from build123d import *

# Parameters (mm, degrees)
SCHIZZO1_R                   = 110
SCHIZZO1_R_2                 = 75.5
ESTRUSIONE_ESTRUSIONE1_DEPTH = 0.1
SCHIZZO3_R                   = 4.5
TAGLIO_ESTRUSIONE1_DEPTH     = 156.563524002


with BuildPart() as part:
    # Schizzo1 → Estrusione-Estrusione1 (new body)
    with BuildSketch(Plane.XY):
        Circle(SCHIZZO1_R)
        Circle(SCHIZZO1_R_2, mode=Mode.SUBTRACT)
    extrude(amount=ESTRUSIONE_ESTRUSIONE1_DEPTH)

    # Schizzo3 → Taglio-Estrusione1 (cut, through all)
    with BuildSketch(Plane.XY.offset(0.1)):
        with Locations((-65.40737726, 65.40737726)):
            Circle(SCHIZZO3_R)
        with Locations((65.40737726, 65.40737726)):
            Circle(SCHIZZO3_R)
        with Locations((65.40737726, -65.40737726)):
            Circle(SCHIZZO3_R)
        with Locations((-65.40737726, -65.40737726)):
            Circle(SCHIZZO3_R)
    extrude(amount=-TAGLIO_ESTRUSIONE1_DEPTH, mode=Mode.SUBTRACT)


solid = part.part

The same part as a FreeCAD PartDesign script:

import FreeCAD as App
import Part
import Sketcher
from FreeCAD import Vector
Q = App.Units.Quantity

doc = App.newDocument("Part")
body = doc.addObject("PartDesign::Body", "Body")

sketch1 = doc.addObject("Sketcher::SketchObject", "Sketch")
body.addObject(sketch1)
sketch1.AttachmentSupport = (doc.XY_Plane, [""])
sketch1.MapMode = "FlatFace"
sketch1.addGeometry([
    Part.Circle(Vector(0, 0, 0), Vector(0, 0, 1), 110),
    Part.Circle(Vector(0, 0, 0), Vector(0, 0, 1), 76),
], False)
sketch1.addConstraint([
    Sketcher.Constraint("Coincident", 0, 3, -1, 1),
    Sketcher.Constraint("Coincident", 1, 3, -1, 1),
    Sketcher.Constraint("Diameter", 0, Q("220 mm")),
    Sketcher.Constraint("Diameter", 1, Q("151 mm")),
])
pad1 = doc.addObject("PartDesign::Pad", "Pad")
body.addObject(pad1)
pad1.Profile = sketch1
pad1.Length = 0.1

sketch2 = doc.addObject("Sketcher::SketchObject", "Sketch001")
body.addObject(sketch2)
sketch2.AttachmentSupport = (doc.XY_Plane, [""])
sketch2.MapMode = "FlatFace"
sketch2.AttachmentOffset = App.Placement(Vector(0, 0, 0.1), App.Rotation())
sketch2.addGeometry([
    Part.Circle(Vector(-65.4, 65.4, 0), Vector(0, 0, 1), 4.5),
    Part.Circle(Vector(65.4, 65.4, 0), Vector(0, 0, 1), 4.5),
    Part.Circle(Vector(65.4, -65.4, 0), Vector(0, 0, 1), 4.5),
    Part.Circle(Vector(-65.4, -65.4, 0), Vector(0, 0, 1), 4.5),
], False)
sketch2.addConstraint([
    Sketcher.Constraint("Equal", 0, 1),
    Sketcher.Constraint("Equal", 1, 2),
    Sketcher.Constraint("Equal", 2, 3),
    Sketcher.Constraint("Symmetric", 0, 3, 2, 3, -1, 1),
    Sketcher.Constraint("Symmetric", 1, 3, 3, 3, -1, 1),
    Sketcher.Constraint("Symmetric", 0, 3, 1, 3, -2),
    Sketcher.Constraint("Diameter", 0, Q("9 mm")),
    Sketcher.Constraint("DistanceX", 0, 3, -1, 1, Q("65.407377 mm")),
    Sketcher.Constraint("DistanceY", -1, 1, 0, 3, Q("65.407377 mm")),
])
pocket1 = doc.addObject("PartDesign::Pocket", "Pocket")
body.addObject(pocket1)
pocket1.Profile = sketch2
pocket1.Type = "ThroughAll"

doc.recompute()
